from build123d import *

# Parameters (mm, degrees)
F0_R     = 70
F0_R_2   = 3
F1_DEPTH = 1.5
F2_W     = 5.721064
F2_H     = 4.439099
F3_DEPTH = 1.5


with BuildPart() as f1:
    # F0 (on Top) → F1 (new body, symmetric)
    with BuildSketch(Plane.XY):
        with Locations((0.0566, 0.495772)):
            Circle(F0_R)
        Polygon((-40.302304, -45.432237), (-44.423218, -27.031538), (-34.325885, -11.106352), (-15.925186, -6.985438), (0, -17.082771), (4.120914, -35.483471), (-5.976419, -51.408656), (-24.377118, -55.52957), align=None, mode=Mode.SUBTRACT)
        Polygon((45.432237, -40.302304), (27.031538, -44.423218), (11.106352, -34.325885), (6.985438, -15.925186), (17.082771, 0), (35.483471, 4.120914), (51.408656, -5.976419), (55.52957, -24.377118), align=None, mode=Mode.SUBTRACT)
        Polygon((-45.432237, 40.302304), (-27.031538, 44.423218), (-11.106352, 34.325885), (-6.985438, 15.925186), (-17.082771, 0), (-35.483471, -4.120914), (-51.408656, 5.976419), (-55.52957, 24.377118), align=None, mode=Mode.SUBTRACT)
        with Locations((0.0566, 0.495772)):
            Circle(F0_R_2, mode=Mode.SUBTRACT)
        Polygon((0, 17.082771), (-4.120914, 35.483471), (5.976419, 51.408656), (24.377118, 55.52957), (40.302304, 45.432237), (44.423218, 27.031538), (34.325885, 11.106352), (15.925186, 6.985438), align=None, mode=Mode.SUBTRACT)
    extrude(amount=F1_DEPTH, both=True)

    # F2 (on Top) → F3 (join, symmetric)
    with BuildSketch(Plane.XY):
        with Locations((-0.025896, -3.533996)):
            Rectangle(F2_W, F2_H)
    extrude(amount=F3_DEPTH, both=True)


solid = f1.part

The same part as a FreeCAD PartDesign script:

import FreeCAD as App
import Part
import Sketcher
from FreeCAD import Vector
Q = App.Units.Quantity


def add_polygon(sketch, points):
    """Adds a closed chain of lines whose ends are joined by coincident constraints."""
    first, n = sketch.GeometryCount, len(points)
    for a, b in zip(points, points[1:] + points[:1]):
        sketch.addGeometry(Part.LineSegment(App.Vector(*a, 0), App.Vector(*b, 0)), False)
    for i in range(n):
        sketch.addConstraint(Sketcher.Constraint("Coincident", first + i, 2, first + (i + 1) % n, 1))

doc = App.newDocument("Part")
body = doc.addObject("PartDesign::Body", "Body")

sketch1 = body.newObject("Sketcher::SketchObject", "Sketch")
sketch1.AttachmentSupport = (doc.getObject("XY_Plane"), [""])
sketch1.MapMode = "FlatFace"
sketch1.addGeometry(Part.Circle(Vector(0.1, 0.5, 0), Vector(0, 0, 1), 70), False)
add_polygon(sketch1, [(-24.4, -55.5), (-40.3, -45.4), (-44.4, -27), (-34.3, -11.1), (-15.9, -7), (0, -17.1), (4.1, -35.5), (-6, -51.4)])
add_polygon(sketch1, [(55.5, -24.4), (45.4, -40.3), (27, -44.4), (11.1, -34.3), (7, -15.9), (17.1, 0), (35.5, 4.1), (51.4, -6)])
add_polygon(sketch1, [(-55.5, 24.4), (-45.4, 40.3), (-27, 44.4), (-11.1, 34.3), (-7, 15.9), (-17.1, 0), (-35.5, -4.1), (-51.4, 6)])
sketch1.addGeometry(Part.Circle(Vector(0.1, 0.5, 0), Vector(0, 0, 1), 3), False)
add_polygon(sketch1, [(15.9, 7), (0, 17.1), (-4.1, 35.5), (6, 51.4), (24.4, 55.5), (40.3, 45.4), (44.4, 27), (34.3, 11.1)])
sketch1.addConstraint([
    Sketcher.Constraint("Coincident", 25, 3, 0, 3),
    Sketcher.Constraint("Symmetric", 9, 2, 17, 2, -1, 1),
    Sketcher.Constraint("Symmetric", 10, 2, 18, 2, -1, 1),
    Sketcher.Constraint("Symmetric", 11, 2, 19, 2, -1, 1),
    Sketcher.Constraint("Symmetric", 12, 2, 20, 2, -1, 1),
    Sketcher.Constraint("Symmetric", 13, 2, 21, 2, -1, 1),
    Sketcher.Constraint("Symmetric", 14, 2, 22, 2, -1, 1),
    Sketcher.Constraint("Symmetric", 15, 2, 23, 2, -1, 1),
    Sketcher.Constraint("Symmetric", 16, 2, 24, 2, -1, 1),
    Sketcher.Constraint("Symmetric", 5, 2, 26, 2, -1, 1),
    Sketcher.Constraint("Symmetric", 6, 2, 27, 2, -1, 1),
    Sketcher.Constraint("Symmetric", 7, 2, 28, 2, -1, 1),
    Sketcher.Constraint("Symmetric", 8, 2, 29, 2, -1, 1),
    Sketcher.Constraint("Symmetric", 1, 2, 30, 2, -1, 1),
    Sketcher.Constraint("Symmetric", 2, 2, 31, 2, -1, 1),
    Sketcher.Constraint("Symmetric", 3, 2, 32, 2, -1, 1),
    Sketcher.Constraint("Symmetric", 4, 2, 33, 2, -1, 1),
    Sketcher.Constraint("PointOnObject", 5, 2, -2),
    Sketcher.Constraint("PointOnObject", 13, 2, -1),
    Sketcher.Constraint("Perpendicular", 1, 3),
    Sketcher.Constraint("Perpendicular", 2, 4),
    Sketcher.Constraint("Perpendicular", 3, 5),
    Sketcher.Constraint("Perpendicular", 4, 6),
    Sketcher.Constraint("Perpendicular", 5, 7),
    Sketcher.Constraint("Perpendicular", 6, 8),
    Sketcher.Constraint("Parallel", 7, 9),
    Sketcher.Constraint("Parallel", 8, 10),
    Sketcher.Constraint("Perpendicular", 9, 11),
    Sketcher.Constraint("Perpendicular", 10, 12),
    Sketcher.Constraint("Perpendicular", 11, 13),
    Sketcher.Constraint("Perpendicular", 12, 14),
    Sketcher.Constraint("Perpendicular", 13, 15),
    Sketcher.Constraint("Perpendicular", 14, 16),
    Sketcher.Constraint("Equal", 1, 2),
    Sketcher.Constraint("Equal", 2, 3),
    Sketcher.Constraint("Equal", 3, 4),
    Sketcher.Constraint("Equal", 4, 5),
    Sketcher.Constraint("Equal", 5, 6),
    Sketcher.Constraint("Equal", 8, 9),
    Sketcher.Constraint("Equal", 9, 10),
    Sketcher.Constraint("Equal", 10, 11),
    Sketcher.Constraint("Equal", 11, 12),
    Sketcher.Constraint("Equal", 12, 13),
    Sketcher.Constraint("Equal", 13, 14),
    Sketcher.Constraint("Diameter", 0, Q("140 mm")),
    Sketcher.Constraint("Diameter", 25, Q("6 mm")),
    Sketcher.Constraint("DistanceY", 0, 3, 26, 2, Q("16.586999 mm")),
    Sketcher.Constraint("Distance", 2, Q("18.856502 mm")),
    Sketcher.Constraint("DistanceX", -1, 1, 0, 3, Q("0.0566 mm")),
    Sketcher.Constraint("DistanceY", 1, 2, 2, 2, Q("18.400699 mm")),
    Sketcher.Constraint("DistanceY", 2, 2, 4, 2, Q("20.0461 mm")),
    Sketcher.Constraint("DistanceY", 2, 2, -1, 1, Q("27.031538 mm")),
    Sketcher.Constraint("DistanceX", -1, 1, 10, 2, Q("27.031538 mm")),
])
pad1 = body.newObject("PartDesign::Pad", "Pad")
pad1.Profile = sketch1
pad1.Length = 3
pad1.Midplane = True

sketch2 = body.newObject("Sketcher::SketchObject", "Sketch001")
sketch2.AttachmentSupport = (doc.getObject("XY_Plane"), [""])
sketch2.MapMode = "FlatFace"
add_polygon(sketch2, [(-2.9, -1.3), (-2.9, -5.8), (2.8, -5.8), (2.8, -1.3)])
sketch2.addConstraint([
    Sketcher.Constraint("Vertical", 0),
    Sketcher.Constraint("Horizontal", 1),
    Sketcher.Constraint("Vertical", 2),
    Sketcher.Constraint("Horizontal", 3),
    Sketcher.Constraint("DistanceY", 0, 2, 0, 1, Q("4.439099 mm")),
    Sketcher.Constraint("DistanceX", 1, 1, 1, 2, Q("5.721064 mm")),
    Sketcher.Constraint("DistanceX", 0, 2, -1, 1, Q("2.886428 mm")),
    Sketcher.Constraint("DistanceY", 0, 2, -1, 1, Q("5.753546 mm")),
])
pad2 = body.newObject("PartDesign::Pad", "Pad001")
pad2.Profile = sketch2
pad2.Length = 3
pad2.Midplane = True

doc.recompute()
